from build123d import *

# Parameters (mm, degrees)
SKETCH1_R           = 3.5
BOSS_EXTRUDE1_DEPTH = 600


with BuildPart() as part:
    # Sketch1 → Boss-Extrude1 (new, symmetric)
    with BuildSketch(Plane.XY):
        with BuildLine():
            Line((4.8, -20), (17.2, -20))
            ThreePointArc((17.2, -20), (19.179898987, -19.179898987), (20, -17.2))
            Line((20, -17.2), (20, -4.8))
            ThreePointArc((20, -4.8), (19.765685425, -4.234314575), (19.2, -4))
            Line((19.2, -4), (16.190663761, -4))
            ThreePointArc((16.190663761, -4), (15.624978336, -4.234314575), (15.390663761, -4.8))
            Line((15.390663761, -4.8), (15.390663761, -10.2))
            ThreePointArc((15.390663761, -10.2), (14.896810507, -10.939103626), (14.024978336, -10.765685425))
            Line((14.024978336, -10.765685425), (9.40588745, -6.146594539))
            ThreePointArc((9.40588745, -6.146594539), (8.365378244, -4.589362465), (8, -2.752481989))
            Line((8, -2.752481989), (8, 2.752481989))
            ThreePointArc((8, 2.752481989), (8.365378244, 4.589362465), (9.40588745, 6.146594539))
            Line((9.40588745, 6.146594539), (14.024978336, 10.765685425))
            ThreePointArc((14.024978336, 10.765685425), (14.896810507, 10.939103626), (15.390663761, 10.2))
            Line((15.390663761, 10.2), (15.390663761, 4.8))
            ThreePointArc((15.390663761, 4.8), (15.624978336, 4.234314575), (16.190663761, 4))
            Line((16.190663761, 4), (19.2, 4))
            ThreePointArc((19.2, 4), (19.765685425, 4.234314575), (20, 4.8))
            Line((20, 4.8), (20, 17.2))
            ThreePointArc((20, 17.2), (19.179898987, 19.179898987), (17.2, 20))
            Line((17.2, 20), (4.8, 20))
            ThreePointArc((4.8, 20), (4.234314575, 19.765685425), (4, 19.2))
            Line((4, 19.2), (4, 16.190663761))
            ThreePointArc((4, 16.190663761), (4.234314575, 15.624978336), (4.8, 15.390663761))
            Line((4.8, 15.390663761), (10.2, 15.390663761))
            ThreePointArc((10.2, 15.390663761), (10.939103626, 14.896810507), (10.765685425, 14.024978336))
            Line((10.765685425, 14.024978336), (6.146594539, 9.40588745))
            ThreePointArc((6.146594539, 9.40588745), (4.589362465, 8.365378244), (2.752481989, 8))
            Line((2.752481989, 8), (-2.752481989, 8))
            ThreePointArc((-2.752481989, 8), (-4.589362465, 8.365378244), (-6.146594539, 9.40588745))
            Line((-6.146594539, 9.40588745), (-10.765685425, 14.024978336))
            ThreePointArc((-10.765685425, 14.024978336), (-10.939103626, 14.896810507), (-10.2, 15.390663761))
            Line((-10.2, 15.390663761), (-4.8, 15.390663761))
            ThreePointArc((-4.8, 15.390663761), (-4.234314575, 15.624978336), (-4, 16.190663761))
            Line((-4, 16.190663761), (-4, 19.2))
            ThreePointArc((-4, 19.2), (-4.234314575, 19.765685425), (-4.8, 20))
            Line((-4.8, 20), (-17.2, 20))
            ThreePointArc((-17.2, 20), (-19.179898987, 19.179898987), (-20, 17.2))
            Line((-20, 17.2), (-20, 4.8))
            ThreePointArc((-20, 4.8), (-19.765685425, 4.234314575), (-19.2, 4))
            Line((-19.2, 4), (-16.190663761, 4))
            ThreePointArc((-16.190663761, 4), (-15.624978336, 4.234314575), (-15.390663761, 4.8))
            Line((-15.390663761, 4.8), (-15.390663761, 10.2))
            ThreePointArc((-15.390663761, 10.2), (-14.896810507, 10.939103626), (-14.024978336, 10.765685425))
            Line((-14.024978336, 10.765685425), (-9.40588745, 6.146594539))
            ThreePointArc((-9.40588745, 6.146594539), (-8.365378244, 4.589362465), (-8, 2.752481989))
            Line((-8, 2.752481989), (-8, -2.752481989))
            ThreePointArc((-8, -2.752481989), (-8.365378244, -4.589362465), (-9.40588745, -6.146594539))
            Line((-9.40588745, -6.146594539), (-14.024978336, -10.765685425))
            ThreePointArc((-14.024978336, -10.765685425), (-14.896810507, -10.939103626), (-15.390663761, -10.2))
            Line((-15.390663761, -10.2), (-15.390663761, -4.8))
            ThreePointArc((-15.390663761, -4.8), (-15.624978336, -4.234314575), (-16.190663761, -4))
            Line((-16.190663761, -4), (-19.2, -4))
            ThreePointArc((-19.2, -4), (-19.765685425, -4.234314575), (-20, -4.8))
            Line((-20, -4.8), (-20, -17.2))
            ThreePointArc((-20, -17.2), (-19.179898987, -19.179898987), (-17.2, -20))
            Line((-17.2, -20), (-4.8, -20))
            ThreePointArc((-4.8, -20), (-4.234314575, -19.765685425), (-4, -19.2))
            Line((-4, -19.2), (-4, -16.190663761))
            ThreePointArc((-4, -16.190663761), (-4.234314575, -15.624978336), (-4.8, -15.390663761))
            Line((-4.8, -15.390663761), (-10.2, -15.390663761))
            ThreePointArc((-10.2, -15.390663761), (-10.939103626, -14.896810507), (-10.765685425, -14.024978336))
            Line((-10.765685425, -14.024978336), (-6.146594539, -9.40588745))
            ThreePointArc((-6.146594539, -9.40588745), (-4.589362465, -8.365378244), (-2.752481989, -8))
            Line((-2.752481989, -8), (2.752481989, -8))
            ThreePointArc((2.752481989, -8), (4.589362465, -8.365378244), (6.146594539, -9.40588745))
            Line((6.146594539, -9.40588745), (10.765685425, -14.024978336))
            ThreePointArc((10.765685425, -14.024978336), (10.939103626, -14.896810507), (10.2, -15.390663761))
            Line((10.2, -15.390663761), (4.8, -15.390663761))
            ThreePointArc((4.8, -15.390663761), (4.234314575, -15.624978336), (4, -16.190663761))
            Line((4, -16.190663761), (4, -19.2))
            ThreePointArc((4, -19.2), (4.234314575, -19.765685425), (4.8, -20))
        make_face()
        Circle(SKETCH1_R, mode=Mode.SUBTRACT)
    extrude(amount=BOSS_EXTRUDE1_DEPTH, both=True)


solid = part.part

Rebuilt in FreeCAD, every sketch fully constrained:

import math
import FreeCAD as App
import Part
import Sketcher
from FreeCAD import Vector

doc = App.newDocument("Part")
body = doc.addObject("PartDesign::Body", "Body")

# Sketch on XY plane
sketch1 = doc.addObject("Sketcher::SketchObject", "Sketch")
body.addObject(sketch1)
sketch1.AttachmentSupport = (doc.XY_Plane, [""])
sketch1.MapMode = "FlatFace"
sketch1.addGeometry([
    Part.LineSegment(Vector(4.8, -20, 0), Vector(17.2, -20, 0)),  # 0
    Part.ArcOfCircle(Part.Circle(Vector(17.2, -17.2, 0), Vector(0, 0, 1), 2.8), math.radians(-90), math.radians(0)),  # 1
    Part.LineSegment(Vector(20, -17.2, 0), Vector(20, -4.8, 0)),  # 2
    Part.ArcOfCircle(Part.Circle(Vector(19.2, -4.8, 0), Vector(0, 0, 1), 0.8), math.radians(0), math.radians(90)),  # 3
    Part.LineSegment(Vector(19.2, -4, 0), Vector(16.2, -4, 0)),  # 4
    Part.ArcOfCircle(Part.Circle(Vector(16.2, -4.8, 0), Vector(0, 0, 1), 0.8), math.radians(90), math.radians(180)),  # 5
    Part.LineSegment(Vector(15.4, -4.8, 0), Vector(15.4, -10.2, 0)),  # 6
    Part.ArcOfCircle(Part.Circle(Vector(14.6, -10.2, 0), Vector(0, 0, 1), 0.8), math.radians(-135), math.radians(0)),  # 7
    Part.LineSegment(Vector(14, -10.8, 0), Vector(9.4, -6.1, 0)),  # 8
    Part.ArcOfCircle(Part.Circle(Vector(12.8, -2.8, 0), Vector(0, 0, 1), 4.8), math.radians(180), math.radians(225)),  # 9
    Part.LineSegment(Vector(8, -2.8, 0), Vector(8, 2.8, 0)),  # 10
    Part.ArcOfCircle(Part.Circle(Vector(12.8, 2.8, 0), Vector(0, 0, 1), 4.8), math.radians(135), math.radians(180)),  # 11
    Part.LineSegment(Vector(9.4, 6.1, 0), Vector(14, 10.8, 0)),  # 12
    Part.ArcOfCircle(Part.Circle(Vector(14.6, 10.2, 0), Vector(0, 0, 1), 0.8), math.radians(0), math.radians(135)),  # 13
    Part.LineSegment(Vector(15.4, 10.2, 0), Vector(15.4, 4.8, 0)),  # 14
    Part.ArcOfCircle(Part.Circle(Vector(16.2, 4.8, 0), Vector(0, 0, 1), 0.8), math.radians(180), math.radians(270)),  # 15
    Part.LineSegment(Vector(16.2, 4, 0), Vector(19.2, 4, 0)),  # 16
    Part.ArcOfCircle(Part.Circle(Vector(19.2, 4.8, 0), Vector(0, 0, 1), 0.8), math.radians(-90), math.radians(0)),  # 17
    Part.LineSegment(Vector(20, 4.8, 0), Vector(20, 17.2, 0)),  # 18
    Part.ArcOfCircle(Part.Circle(Vector(17.2, 17.2, 0), Vector(0, 0, 1), 2.8), math.radians(0), math.radians(90)),  # 19
    Part.LineSegment(Vector(17.2, 20, 0), Vector(4.8, 20, 0)),  # 20
    Part.ArcOfCircle(Part.Circle(Vector(4.8, 19.2, 0), Vector(0, 0, 1), 0.8), math.radians(90), math.radians(180)),  # 21
    Part.LineSegment(Vector(4, 19.2, 0), Vector(4, 16.2, 0)),  # 22
    Part.ArcOfCircle(Part.Circle(Vector(4.8, 16.2, 0), Vector(0, 0, 1), 0.8), math.radians(180), math.radians(270)),  # 23
    Part.LineSegment(Vector(4.8, 15.4, 0), Vector(10.2, 15.4, 0)),  # 24
    Part.ArcOfCircle(Part.Circle(Vector(10.2, 14.6, 0), Vector(0, 0, 1), 0.8), math.radians(-45), math.radians(90)),  # 25
    Part.LineSegment(Vector(10.8, 14, 0), Vector(6.1, 9.4, 0)),  # 26
    Part.ArcOfCircle(Part.Circle(Vector(2.8, 12.8, 0), Vector(0, 0, 1), 4.8), math.radians(-90), math.radians(-45)),  # 27
    Part.LineSegment(Vector(2.8, 8, 0), Vector(-2.8, 8, 0)),  # 28
    Part.ArcOfCircle(Part.Circle(Vector(-2.8, 12.8, 0), Vector(0, 0, 1), 4.8), math.radians(-135), math.radians(-90)),  # 29
    Part.LineSegment(Vector(-6.1, 9.4, 0), Vector(-10.8, 14, 0)),  # 30
    Part.ArcOfCircle(Part.Circle(Vector(-10.2, 14.6, 0), Vector(0, 0, 1), 0.8), math.radians(90), math.radians(225)),  # 31
    Part.LineSegment(Vector(-10.2, 15.4, 0), Vector(-4.8, 15.4, 0)),  # 32
    Part.ArcOfCircle(Part.Circle(Vector(-4.8, 16.2, 0), Vector(0, 0, 1), 0.8), math.radians(-90), math.radians(0)),  # 33
    Part.LineSegment(Vector(-4, 16.2, 0), Vector(-4, 19.2, 0)),  # 34
    Part.ArcOfCircle(Part.Circle(Vector(-4.8, 19.2, 0), Vector(0, 0, 1), 0.8), math.radians(0), math.radians(90)),  # 35
    Part.LineSegment(Vector(-4.8, 20, 0), Vector(-17.2, 20, 0)),  # 36
    Part.ArcOfCircle(Part.Circle(Vector(-17.2, 17.2, 0), Vector(0, 0, 1), 2.8), math.radians(90), math.radians(180)),  # 37
    Part.LineSegment(Vector(-20, 17.2, 0), Vector(-20, 4.8, 0)),  # 38
    Part.ArcOfCircle(Part.Circle(Vector(-19.2, 4.8, 0), Vector(0, 0, 1), 0.8), math.radians(180), math.radians(270)),  # 39
    Part.LineSegment(Vector(-19.2, 4, 0), Vector(-16.2, 4, 0)),  # 40
    Part.ArcOfCircle(Part.Circle(Vector(-16.2, 4.8, 0), Vector(0, 0, 1), 0.8), math.radians(-90), math.radians(0)),  # 41
    Part.LineSegment(Vector(-15.4, 4.8, 0), Vector(-15.4, 10.2, 0)),  # 42
    Part.ArcOfCircle(Part.Circle(Vector(-14.6, 10.2, 0), Vector(0, 0, 1), 0.8), math.radians(45), math.radians(180)),  # 43
    Part.LineSegment(Vector(-14, 10.8, 0), Vector(-9.4, 6.1, 0)),  # 44
    Part.ArcOfCircle(Part.Circle(Vector(-12.8, 2.8, 0), Vector(0, 0, 1), 4.8), math.radians(0), math.radians(45)),  # 45
    Part.LineSegment(Vector(-8, 2.8, 0), Vector(-8, -2.8, 0)),  # 46
    Part.ArcOfCircle(Part.Circle(Vector(-12.8, -2.8, 0), Vector(0, 0, 1), 4.8), math.radians(-45), math.radians(0)),  # 47
    Part.LineSegment(Vector(-9.4, -6.1, 0), Vector(-14, -10.8, 0)),  # 48
    Part.ArcOfCircle(Part.Circle(Vector(-14.6, -10.2, 0), Vector(0, 0, 1), 0.8), math.radians(180), math.radians(315)),  # 49
    Part.LineSegment(Vector(-15.4, -10.2, 0), Vector(-15.4, -4.8, 0)),  # 50
    Part.ArcOfCircle(Part.Circle(Vector(-16.2, -4.8, 0), Vector(0, 0, 1), 0.8), math.radians(0), math.radians(90)),  # 51
    Part.LineSegment(Vector(-16.2, -4, 0), Vector(-19.2, -4, 0)),  # 52
    Part.ArcOfCircle(Part.Circle(Vector(-19.2, -4.8, 0), Vector(0, 0, 1), 0.8), math.radians(90), math.radians(180)),  # 53
    Part.LineSegment(Vector(-20, -4.8, 0), Vector(-20, -17.2, 0)),  # 54
    Part.ArcOfCircle(Part.Circle(Vector(-17.2, -17.2, 0), Vector(0, 0, 1), 2.8), math.radians(-180), math.radians(-90)),  # 55
    Part.LineSegment(Vector(-17.2, -20, 0), Vector(-4.8, -20, 0)),  # 56
    Part.ArcOfCircle(Part.Circle(Vector(-4.8, -19.2, 0), Vector(0, 0, 1), 0.8), math.radians(-90), math.radians(0)),  # 57
    Part.LineSegment(Vector(-4, -19.2, 0), Vector(-4, -16.2, 0)),  # 58
    Part.ArcOfCircle(Part.Circle(Vector(-4.8, -16.2, 0), Vector(0, 0, 1), 0.8), math.radians(0), math.radians(90)),  # 59
    Part.LineSegment(Vector(-4.8, -15.4, 0), Vector(-10.2, -15.4, 0)),  # 60
    Part.ArcOfCircle(Part.Circle(Vector(-10.2, -14.6, 0), Vector(0, 0, 1), 0.8), math.radians(135), math.radians(270)),  # 61
    Part.LineSegment(Vector(-10.8, -14, 0), Vector(-6.1, -9.4, 0)),  # 62
    Part.ArcOfCircle(Part.Circle(Vector(-2.8, -12.8, 0), Vector(0, 0, 1), 4.8), math.radians(90), math.radians(135)),  # 63
    Part.LineSegment(Vector(-2.8, -8, 0), Vector(2.8, -8, 0)),  # 64
    Part.ArcOfCircle(Part.Circle(Vector(2.8, -12.8, 0), Vector(0, 0, 1), 4.8), math.radians(45), math.radians(90)),  # 65
    Part.LineSegment(Vector(6.1, -9.4, 0), Vector(10.8, -14, 0)),  # 66
    Part.ArcOfCircle(Part.Circle(Vector(10.2, -14.6, 0), Vector(0, 0, 1), 0.8), math.radians(-90), math.radians(45)),  # 67
    Part.LineSegment(Vector(10.2, -15.4, 0), Vector(4.8, -15.4, 0)),  # 68
    Part.ArcOfCircle(Part.Circle(Vector(4.8, -16.2, 0), Vector(0, 0, 1), 0.8), math.radians(90), math.radians(180)),  # 69
    Part.LineSegment(Vector(4, -16.2, 0), Vector(4, -19.2, 0)),  # 70
    Part.ArcOfCircle(Part.Circle(Vector(4.8, -19.2, 0), Vector(0, 0, 1), 0.8), math.radians(180), math.radians(270)),  # 71
    Part.Circle(Vector(0, 0, 0), Vector(0, 0, 1), 3.5),  # 72
], False)
sketch1.addConstraint([
    Sketcher.Constraint("Tangent", 0, 2, 1, 1),
    Sketcher.Constraint("Tangent", 1, 2, 2, 1),
    Sketcher.Constraint("Tangent", 2, 2, 3, 1),
    Sketcher.Constraint("Tangent", 3, 2, 4, 1),
    Sketcher.Constraint("Tangent", 4, 2, 5, 1),
    Sketcher.Constraint("Tangent", 5, 2, 6, 1),
    Sketcher.Constraint("Tangent", 6, 2, 7, 2),
    Sketcher.Constraint("Tangent", 7, 1, 8, 1),
    Sketcher.Constraint("Tangent", 8, 2, 9, 2),
    Sketcher.Constraint("Tangent", 9, 1, 10, 1),
    Sketcher.Constraint("Tangent", 10, 2, 11, 2),
    Sketcher.Constraint("Tangent", 11, 1, 12, 1),
    Sketcher.Constraint("Tangent", 12, 2, 13, 2),
    Sketcher.Constraint("Tangent", 13, 1, 14, 1),
    Sketcher.Constraint("Tangent", 14, 2, 15, 1),
    Sketcher.Constraint("Tangent", 15, 2, 16, 1),
    Sketcher.Constraint("Tangent", 16, 2, 17, 1),
    Sketcher.Constraint("Tangent", 17, 2, 18, 1),
    Sketcher.Constraint("Tangent", 18, 2, 19, 1),
    Sketcher.Constraint("Tangent", 19, 2, 20, 1),
    Sketcher.Constraint("Tangent", 20, 2, 21, 1),
    Sketcher.Constraint("Tangent", 21, 2, 22, 1),
    Sketcher.Constraint("Tangent", 22, 2, 23, 1),
    Sketcher.Constraint("Tangent", 23, 2, 24, 1),
    Sketcher.Constraint("Tangent", 24, 2, 25, 2),
    Sketcher.Constraint("Tangent", 25, 1, 26, 1),
    Sketcher.Constraint("Tangent", 26, 2, 27, 2),
    Sketcher.Constraint("Tangent", 27, 1, 28, 1),
    Sketcher.Constraint("Tangent", 28, 2, 29, 2),
    Sketcher.Constraint("Tangent", 29, 1, 30, 1),
    Sketcher.Constraint("Tangent", 30, 2, 31, 2),
    Sketcher.Constraint("Tangent", 31, 1, 32, 1),
    Sketcher.Constraint("Tangent", 32, 2, 33, 1),
    Sketcher.Constraint("Tangent", 33, 2, 34, 1),
    Sketcher.Constraint("Tangent", 34, 2, 35, 1),
    Sketcher.Constraint("Tangent", 35, 2, 36, 1),
    Sketcher.Constraint("Tangent", 36, 2, 37, 1),
    Sketcher.Constraint("Tangent", 37, 2, 38, 1),
    Sketcher.Constraint("Tangent", 38, 2, 39, 1),
    Sketcher.Constraint("Tangent", 39, 2, 40, 1),
    Sketcher.Constraint("Tangent", 40, 2, 41, 1),
    Sketcher.Constraint("Tangent", 41, 2, 42, 1),
    Sketcher.Constraint("Tangent", 42, 2, 43, 2),
    Sketcher.Constraint("Tangent", 43, 1, 44, 1),
    Sketcher.Constraint("Tangent", 44, 2, 45, 2),
    Sketcher.Constraint("Tangent", 45, 1, 46, 1),
    Sketcher.Constraint("Tangent", 46, 2, 47, 2),
    Sketcher.Constraint("Tangent", 47, 1, 48, 1),
    Sketcher.Constraint("Tangent", 48, 2, 49, 2),
    Sketcher.Constraint("Tangent", 49, 1, 50, 1),
    Sketcher.Constraint("Tangent", 50, 2, 51, 1),
    Sketcher.Constraint("Tangent", 51, 2, 52, 1),
    Sketcher.Constraint("Tangent", 52, 2, 53, 1),
    Sketcher.Constraint("Tangent", 53, 2, 54, 1),
    Sketcher.Constraint("Tangent", 54, 2, 55, 1),
    Sketcher.Constraint("Tangent", 55, 2, 56, 1),
    Sketcher.Constraint("Tangent", 56, 2, 57, 1),
    Sketcher.Constraint("Tangent", 57, 2, 58, 1),
    Sketcher.Constraint("Tangent", 58, 2, 59, 1),
    Sketcher.Constraint("Tangent", 59, 2, 60, 1),
    Sketcher.Constraint("Tangent", 60, 2, 61, 2),
    Sketcher.Constraint("Tangent", 61, 1, 62, 1),
    Sketcher.Constraint("Tangent", 62, 2, 63, 2),
    Sketcher.Constraint("Tangent", 63, 1, 64, 1),
    Sketcher.Constraint("Tangent", 64, 2, 65, 2),
    Sketcher.Constraint("Tangent", 65, 1, 66, 1),
    Sketcher.Constraint("Tangent", 66, 2, 67, 2),
    Sketcher.Constraint("Tangent", 67, 1, 68, 1),
    Sketcher.Constraint("Tangent", 68, 2, 69, 1),
    Sketcher.Constraint("Tangent", 69, 2, 70, 1),
    Sketcher.Constraint("Tangent", 70, 2, 71, 1),
    Sketcher.Constraint("Tangent", 71, 2, 0, 1),
    Sketcher.Constraint("Horizontal", 0),
    Sketcher.Constraint("Vertical", 2),
    Sketcher.Constraint("Horizontal", 4),
    Sketcher.Constraint("Vertical", 6),
    Sketcher.Constraint("Vertical", 10),
    Sketcher.Constraint("Vertical", 14),
    Sketcher.Constraint("Horizontal", 16),
    Sketcher.Constraint("Vertical", 18),
    Sketcher.Constraint("Horizontal", 20),
    Sketcher.Constraint("Vertical", 22),
    Sketcher.Constraint("Horizontal", 24),
    Sketcher.Constraint("Horizontal", 28),
    Sketcher.Constraint("Horizontal", 32),
    Sketcher.Constraint("Vertical", 34),
    Sketcher.Constraint("Horizontal", 36),
    Sketcher.Constraint("Vertical", 38),
    Sketcher.Constraint("Horizontal", 40),
    Sketcher.Constraint("Vertical", 42),
    Sketcher.Constraint("Vertical", 46),
    Sketcher.Constraint("Vertical", 50),
    Sketcher.Constraint("Horizontal", 52),
    Sketcher.Constraint("Vertical", 54),
    Sketcher.Constraint("Horizontal", 56),
    Sketcher.Constraint("Vertical", 58),
    Sketcher.Constraint("Horizontal", 60),
    Sketcher.Constraint("Horizontal", 64),
    Sketcher.Constraint("Horizontal", 68),
    Sketcher.Constraint("Vertical", 70),
    Sketcher.Constraint("Coincident", 72, 3, -1, 1),
    Sketcher.Constraint("Equal", 3, 5),
    Sketcher.Constraint("Equal", 5, 7),
    Sketcher.Constraint("Equal", 9, 11),
    Sketcher.Constraint("Equal", 7, 13),
    Sketcher.Constraint("Equal", 13, 15),
    Sketcher.Constraint("Equal", 15, 17),
    Sketcher.Constraint("Equal", 1, 19),
    Sketcher.Constraint("Equal", 17, 21),
    Sketcher.Constraint("Equal", 21, 23),
    Sketcher.Constraint("Equal", 23, 25),
    Sketcher.Constraint("Equal", 11, 27),
    Sketcher.Constraint("Equal", 27, 29),
    Sketcher.Constraint("Equal", 25, 31),
    Sketcher.Constraint("Equal", 31, 33),
    Sketcher.Constraint("Equal", 33, 35),
    Sketcher.Constraint("Equal", 19, 37),
    Sketcher.Constraint("Equal", 35, 39),
    Sketcher.Constraint("Equal", 39, 41),
    Sketcher.Constraint("Equal", 41, 43),
    Sketcher.Constraint("Equal", 29, 45),
    Sketcher.Constraint("Equal", 45, 47),
    Sketcher.Constraint("Equal", 43, 49),
    Sketcher.Constraint("Equal", 49, 51),
    Sketcher.Constraint("Equal", 51, 53),
    Sketcher.Constraint("Equal", 37, 55),
    Sketcher.Constraint("Equal", 53, 57),
    Sketcher.Constraint("Equal", 57, 59),
    Sketcher.Constraint("Equal", 59, 61),
    Sketcher.Constraint("Equal", 47, 63),
    Sketcher.Constraint("Equal", 63, 65),
    Sketcher.Constraint("Equal", 61, 67),
    Sketcher.Constraint("Equal", 67, 69),
    Sketcher.Constraint("Equal", 69, 71),
    Sketcher.Constraint("Symmetric", 1, 3, 37, 3, -1, 1),
    Sketcher.Constraint("Symmetric", 5, 3, 41, 3, -1, 1),
    Sketcher.Constraint("Symmetric", 9, 3, 45, 3, -1, 1),
    Sketcher.Constraint("Symmetric", 13, 3, 49, 3, -1, 1),
    Sketcher.Constraint("Symmetric", 17, 3, 53, 3, -1, 1),
    Sketcher.Constraint("Symmetric", 21, 3, 57, 3, -1, 1),
    Sketcher.Constraint("Symmetric", 25, 3, 61, 3, -1, 1),
    Sketcher.Constraint("Symmetric", 27, 3, 63, 3, -1, 1),
    Sketcher.Constraint("Symmetric", 31, 3, 67, 3, -1, 1),
    Sketcher.Constraint("Symmetric", 25, 3, 31, 3, -2),
    Sketcher.Constraint("Symmetric", 21, 3, 35, 3, -2),
    Sketcher.Constraint("Symmetric", 17, 3, 39, 3, -2),
    Sketcher.Constraint("Symmetric", 13, 3, 43, 3, -2),
    Sketcher.Constraint("Symmetric", 8, 2, 47, 1, -2),
    Sketcher.Constraint("Perpendicular", 8, 12),
    Sketcher.Constraint("Parallel", 12, 26),
    Sketcher.Constraint("Perpendicular", 26, 30),
    Sketcher.Constraint("Perpendicular", 44, 48),
    Sketcher.Constraint("Perpendicular", 62, 66),
    Sketcher.Constraint("Vertical", 23, 3, 69, 3),
    Sketcher.Constraint("Equal", 56, 2),
    Sketcher.Constraint("Equal", 68, 6),
    Sketcher.Constraint("Equal", 64, 10),
    Sketcher.Constraint("Equal", 52, 22),
    Sketcher.Constraint("Equal", 12, 26),
    Sketcher.Constraint("Diameter", 72, 7.0),
    Sketcher.Constraint("Radius", 1, 2.8),
    Sketcher.Constraint("Radius", 3, 0.8),
    Sketcher.Constraint("Radius", 9, 4.8),
    Sketcher.Constraint("DistanceX", 0, 1, 0, 2, 12.4),
    Sketcher.Constraint("DistanceX", 24, 1, 24, 2, 5.4),
    Sketcher.Constraint("DistanceY", 0, 2, -1, 1, 20.0),
    Sketcher.Constraint("DistanceX", -1, 1, 9, 1, 8.0),
    Sketcher.Constraint("Distance", 8, 6.532381),
])
pad1 = doc.addObject("PartDesign::Pad", "Pad")
body.addObject(pad1)
pad1.Profile = sketch1
pad1.Length = 1200
pad1.Midplane = True

doc.recompute()
